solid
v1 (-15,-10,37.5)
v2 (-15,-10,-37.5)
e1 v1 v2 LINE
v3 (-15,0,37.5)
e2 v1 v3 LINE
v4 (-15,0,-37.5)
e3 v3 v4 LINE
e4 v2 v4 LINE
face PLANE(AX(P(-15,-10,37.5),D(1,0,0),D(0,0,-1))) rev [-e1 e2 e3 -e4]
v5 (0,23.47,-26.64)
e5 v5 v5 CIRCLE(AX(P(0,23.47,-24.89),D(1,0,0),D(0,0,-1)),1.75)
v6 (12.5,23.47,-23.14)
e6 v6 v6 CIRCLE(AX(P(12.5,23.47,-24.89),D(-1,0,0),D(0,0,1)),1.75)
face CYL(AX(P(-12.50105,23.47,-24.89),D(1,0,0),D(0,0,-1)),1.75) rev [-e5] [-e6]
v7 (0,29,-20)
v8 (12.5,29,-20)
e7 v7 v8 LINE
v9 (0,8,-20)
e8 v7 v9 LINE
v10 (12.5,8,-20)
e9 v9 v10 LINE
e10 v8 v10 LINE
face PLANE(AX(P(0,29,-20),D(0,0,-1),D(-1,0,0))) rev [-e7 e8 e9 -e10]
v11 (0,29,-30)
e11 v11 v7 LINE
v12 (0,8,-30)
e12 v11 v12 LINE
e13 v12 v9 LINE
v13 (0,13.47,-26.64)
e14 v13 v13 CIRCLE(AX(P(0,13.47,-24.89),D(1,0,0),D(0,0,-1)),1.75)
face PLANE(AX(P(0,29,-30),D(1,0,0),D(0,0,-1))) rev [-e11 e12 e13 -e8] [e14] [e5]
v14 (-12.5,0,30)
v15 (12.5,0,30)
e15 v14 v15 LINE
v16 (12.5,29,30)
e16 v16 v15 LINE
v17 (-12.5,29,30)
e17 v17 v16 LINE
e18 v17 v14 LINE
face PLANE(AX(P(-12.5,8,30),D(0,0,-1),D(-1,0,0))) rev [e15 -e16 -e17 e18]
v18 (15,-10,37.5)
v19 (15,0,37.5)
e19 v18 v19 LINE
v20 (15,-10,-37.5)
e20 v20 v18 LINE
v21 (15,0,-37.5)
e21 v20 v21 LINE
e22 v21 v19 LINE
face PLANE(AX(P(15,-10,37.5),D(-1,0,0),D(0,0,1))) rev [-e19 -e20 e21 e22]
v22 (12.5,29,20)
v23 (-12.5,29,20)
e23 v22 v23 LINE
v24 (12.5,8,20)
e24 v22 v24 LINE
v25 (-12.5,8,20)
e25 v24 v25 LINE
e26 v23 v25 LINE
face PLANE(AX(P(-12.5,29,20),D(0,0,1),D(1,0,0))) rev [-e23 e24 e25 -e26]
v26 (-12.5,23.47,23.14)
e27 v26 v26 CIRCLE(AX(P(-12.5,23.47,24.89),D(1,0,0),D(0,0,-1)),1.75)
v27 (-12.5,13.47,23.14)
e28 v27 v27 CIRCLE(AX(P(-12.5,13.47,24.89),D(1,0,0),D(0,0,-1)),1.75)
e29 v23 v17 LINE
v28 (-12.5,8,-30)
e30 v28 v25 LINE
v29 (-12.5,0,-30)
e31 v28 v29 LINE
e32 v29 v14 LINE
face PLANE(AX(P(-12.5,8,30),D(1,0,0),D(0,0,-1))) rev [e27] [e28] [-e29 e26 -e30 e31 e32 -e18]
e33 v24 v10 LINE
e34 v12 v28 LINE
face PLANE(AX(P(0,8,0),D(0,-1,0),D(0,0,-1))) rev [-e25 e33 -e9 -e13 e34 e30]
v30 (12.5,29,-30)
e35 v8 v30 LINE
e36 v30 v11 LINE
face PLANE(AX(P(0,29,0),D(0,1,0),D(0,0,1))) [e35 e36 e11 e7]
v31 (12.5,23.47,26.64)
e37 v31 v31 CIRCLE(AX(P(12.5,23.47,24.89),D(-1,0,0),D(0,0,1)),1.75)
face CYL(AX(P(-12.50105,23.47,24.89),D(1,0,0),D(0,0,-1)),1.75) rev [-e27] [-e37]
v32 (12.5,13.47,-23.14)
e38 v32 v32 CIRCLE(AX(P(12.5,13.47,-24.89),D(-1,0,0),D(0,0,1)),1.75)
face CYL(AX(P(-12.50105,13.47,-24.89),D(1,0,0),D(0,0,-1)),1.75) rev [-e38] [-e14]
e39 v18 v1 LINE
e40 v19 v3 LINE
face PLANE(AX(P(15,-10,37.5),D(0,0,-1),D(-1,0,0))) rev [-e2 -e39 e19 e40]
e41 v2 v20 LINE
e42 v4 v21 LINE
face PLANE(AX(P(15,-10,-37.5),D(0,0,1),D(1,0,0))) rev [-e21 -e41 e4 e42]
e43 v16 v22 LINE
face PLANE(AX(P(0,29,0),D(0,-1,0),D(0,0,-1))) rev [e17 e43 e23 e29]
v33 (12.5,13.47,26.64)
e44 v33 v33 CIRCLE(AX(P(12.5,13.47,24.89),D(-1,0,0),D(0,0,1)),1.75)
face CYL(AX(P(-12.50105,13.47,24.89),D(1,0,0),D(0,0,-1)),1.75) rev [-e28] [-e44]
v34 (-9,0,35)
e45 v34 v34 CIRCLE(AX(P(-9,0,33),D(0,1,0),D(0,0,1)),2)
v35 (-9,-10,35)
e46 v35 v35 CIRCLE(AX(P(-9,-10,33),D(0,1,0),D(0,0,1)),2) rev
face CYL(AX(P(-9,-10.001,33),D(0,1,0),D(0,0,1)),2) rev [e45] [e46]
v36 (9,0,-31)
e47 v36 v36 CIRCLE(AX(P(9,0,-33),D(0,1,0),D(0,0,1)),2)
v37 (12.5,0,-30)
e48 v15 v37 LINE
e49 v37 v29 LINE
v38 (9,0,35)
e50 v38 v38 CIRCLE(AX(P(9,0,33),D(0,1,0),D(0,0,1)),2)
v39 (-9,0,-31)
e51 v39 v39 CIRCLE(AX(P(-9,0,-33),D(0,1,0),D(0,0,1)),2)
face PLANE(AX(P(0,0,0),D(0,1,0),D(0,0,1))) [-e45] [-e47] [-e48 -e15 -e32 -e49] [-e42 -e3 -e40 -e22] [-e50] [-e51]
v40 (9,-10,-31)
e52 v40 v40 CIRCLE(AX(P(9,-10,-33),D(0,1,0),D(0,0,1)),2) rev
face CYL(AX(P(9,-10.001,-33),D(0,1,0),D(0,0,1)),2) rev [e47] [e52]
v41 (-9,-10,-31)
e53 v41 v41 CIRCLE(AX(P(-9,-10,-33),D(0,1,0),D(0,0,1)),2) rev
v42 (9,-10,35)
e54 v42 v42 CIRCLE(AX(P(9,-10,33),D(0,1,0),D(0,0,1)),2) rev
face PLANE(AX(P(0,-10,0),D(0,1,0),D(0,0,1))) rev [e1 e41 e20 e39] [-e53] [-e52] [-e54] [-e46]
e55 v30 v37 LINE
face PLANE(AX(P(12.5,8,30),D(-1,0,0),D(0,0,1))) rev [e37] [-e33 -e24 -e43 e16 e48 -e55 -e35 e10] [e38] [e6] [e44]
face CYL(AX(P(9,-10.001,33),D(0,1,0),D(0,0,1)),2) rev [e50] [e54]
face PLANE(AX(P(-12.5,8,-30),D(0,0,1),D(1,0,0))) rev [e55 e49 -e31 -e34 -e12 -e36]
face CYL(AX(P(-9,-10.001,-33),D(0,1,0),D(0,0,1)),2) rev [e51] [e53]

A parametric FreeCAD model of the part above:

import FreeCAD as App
import Part
import Sketcher
from FreeCAD import Vector
Q = App.Units.Quantity

doc = App.newDocument("Part")
params = doc.addObject("Spreadsheet::Sheet", "Params")
for row, (alias, value) in enumerate([
    ("sketch1_width", "25 mm"),
    ("sketch1_height", "60 mm"),
    ("pad1_length", "8 mm"),
    ("sketch2_width", "25 mm"),
    ("sketch2_height", "10 mm"),
    ("pad2_length", "21 mm"),
    ("sketch3_diameter", "3.5 mm"),
    ("sketch4_diameter", "3.5 mm"),
    ("sketch5_diameter", "3.5 mm"),
    ("sketch6_diameter", "3.5 mm"),
    ("sketch7_width", "30 mm"),
    ("sketch7_height", "75 mm"),
    ("pad3_length", "10 mm"),
    ("sketch8_diameter", "4 mm"),
    ("sketch9_diameter", "4 mm"),
    ("sketch10_diameter", "4 mm"),
    ("sketch11_diameter", "4 mm"),
], start=1):
    params.set(f"A{row}", alias)
    params.set(f"B{row}", "=" + value)
    params.setAlias(f"B{row}", alias)

body = doc.addObject("PartDesign::Body", "Body")

sketch1 = body.newObject("Sketcher::SketchObject", "Sketch")
sketch1.AttachmentSupport = (doc.getObject("XZ_Plane"), [""])
sketch1.MapMode = "FlatFace"
sketch1.addGeometry(Part.LineSegment(Vector(-12, -30, 0), Vector(-12, 30, 0)), False)
sketch1.addGeometry(Part.LineSegment(Vector(-12, 30, 0), Vector(12, 30, 0)), False)
sketch1.addGeometry(Part.LineSegment(Vector(12, 30, 0), Vector(12, -30, 0)), False)
sketch1.addGeometry(Part.LineSegment(Vector(12, -30, 0), Vector(-12, -30, 0)), False)
sketch1.addConstraint(Sketcher.Constraint("Coincident", 0, 2, 1, 1))
sketch1.addConstraint(Sketcher.Constraint("Coincident", 1, 2, 2, 1))
sketch1.addConstraint(Sketcher.Constraint("Coincident", 2, 2, 3, 1))
sketch1.addConstraint(Sketcher.Constraint("Coincident", 3, 2, 0, 1))
sketch1.addConstraint(Sketcher.Constraint("Vertical", 0))
sketch1.addConstraint(Sketcher.Constraint("Horizontal", 1))
sketch1.addConstraint(Sketcher.Constraint("Vertical", 2))
sketch1.addConstraint(Sketcher.Constraint("Horizontal", 3))
sketch1.addConstraint(Sketcher.Constraint("Symmetric", 0, 2, 2, 2, -1, 1))
sketch1.addConstraint(Sketcher.Constraint("DistanceX", 1, 1, 1, 2, Q("25 mm")))
sketch1.addConstraint(Sketcher.Constraint("DistanceY", 0, 1, 0, 2, Q("60 mm")))
sketch1.setExpression("Constraints[9]", "Params.sketch1_width")
sketch1.setExpression("Constraints[10]", "Params.sketch1_height")
pad1 = body.newObject("PartDesign::Pad", "Pad")
pad1.Profile = sketch1
pad1.setExpression("Length", "Params.pad1_length")
pad1.Reversed = True

sketch2 = body.newObject("Sketcher::SketchObject", "Sketch001")
sketch2.AttachmentSupport = (doc.getObject("XZ_Plane"), [""])
sketch2.MapMode = "FlatFace"
sketch2.AttachmentOffset = App.Placement(Vector(0, 0, -8), App.Rotation())
sketch2.addGeometry(Part.LineSegment(Vector(-12, 20, 0), Vector(-12, 30, 0)), False)
sketch2.addGeometry(Part.LineSegment(Vector(-12, 30, 0), Vector(12, 30, 0)), False)
sketch2.addGeometry(Part.LineSegment(Vector(12, 30, 0), Vector(12, 20, 0)), False)
sketch2.addGeometry(Part.LineSegment(Vector(12, 20, 0), Vector(-12, 20, 0)), False)
sketch2.addGeometry(Part.LineSegment(Vector(0, -30, 0), Vector(0, -20, 0)), False)
sketch2.addGeometry(Part.LineSegment(Vector(0, -20, 0), Vector(12, -20, 0)), False)
sketch2.addGeometry(Part.LineSegment(Vector(12, -20, 0), Vector(12, -30, 0)), False)
sketch2.addGeometry(Part.LineSegment(Vector(12, -30, 0), Vector(0, -30, 0)), False)
sketch2.addConstraint(Sketcher.Constraint("Coincident", 0, 2, 1, 1))
sketch2.addConstraint(Sketcher.Constraint("Coincident", 1, 2, 2, 1))
sketch2.addConstraint(Sketcher.Constraint("Coincident", 2, 2, 3, 1))
sketch2.addConstraint(Sketcher.Constraint("Coincident", 3, 2, 0, 1))
sketch2.addConstraint(Sketcher.Constraint("Coincident", 4, 2, 5, 1))
sketch2.addConstraint(Sketcher.Constraint("Coincident", 5, 2, 6, 1))
sketch2.addConstraint(Sketcher.Constraint("Coincident", 6, 2, 7, 1))
sketch2.addConstraint(Sketcher.Constraint("Coincident", 7, 2, 4, 1))
sketch2.addConstraint(Sketcher.Constraint("Vertical", 0))
sketch2.addConstraint(Sketcher.Constraint("Horizontal", 1))
sketch2.addConstraint(Sketcher.Constraint("Vertical", 2))
sketch2.addConstraint(Sketcher.Constraint("Horizontal", 3))
sketch2.addConstraint(Sketcher.Constraint("Vertical", 4))
sketch2.addConstraint(Sketcher.Constraint("Horizontal", 5))
sketch2.addConstraint(Sketcher.Constraint("Vertical", 6))
sketch2.addConstraint(Sketcher.Constraint("Horizontal", 7))
sketch2.addConstraint(Sketcher.Constraint("Symmetric", 3, 2, 5, 2, -1, 1))
sketch2.addConstraint(Sketcher.Constraint("Symmetric", 1, 2, 6, 2, -1))
sketch2.addConstraint(Sketcher.Constraint("PointOnObject", 4, 2, -2))
sketch2.addConstraint(Sketcher.Constraint("DistanceX", 1, 1, 1, 2, Q("25 mm")))
sketch2.addConstraint(Sketcher.Constraint("DistanceY", 0, 1, 0, 2, Q("10 mm")))
sketch2.addConstraint(Sketcher.Constraint("DistanceY", -1, 1, 0, 2, Q("30 mm")))
sketch2.setExpression("Constraints[19]", "Params.sketch2_width")
sketch2.setExpression("Constraints[20]", "Params.sketch2_height")
pad2 = body.newObject("PartDesign::Pad", "Pad001")
pad2.Profile = sketch2
pad2.setExpression("Length", "Params.pad2_length")
pad2.Reversed = True

sketch3 = body.newObject("Sketcher::SketchObject", "Sketch002")
sketch3.AttachmentSupport = (doc.getObject("YZ_Plane"), [""])
sketch3.MapMode = "FlatFace"
sketch3.AttachmentOffset = App.Placement(Vector(0, 0, 12.5), App.Rotation())
sketch3.addGeometry(Part.Circle(Vector(23.5, -24.9, 0), Vector(0, 0, 1), 1.8), False)
sketch3.addConstraint(Sketcher.Constraint("Diameter", 0, Q("3.5 mm")))
sketch3.addConstraint(Sketcher.Constraint("DistanceX", -1, 1, 0, 3, Q("23.47 mm")))
sketch3.addConstraint(Sketcher.Constraint("DistanceY", 0, 3, -1, 1, Q("24.89 mm")))
sketch3.setExpression("Constraints[0]", "Params.sketch3_diameter")
pocket1 = body.newObject("PartDesign::Pocket", "Pocket")
pocket1.Profile = sketch3
pocket1.Type = "UpToFirst"

sketch4 = body.newObject("Sketcher::SketchObject", "Sketch003")
sketch4.AttachmentSupport = (doc.getObject("YZ_Plane"), [""])
sketch4.MapMode = "FlatFace"
sketch4.AttachmentOffset = App.Placement(Vector(0, 0, 12.5), App.Rotation())
sketch4.addGeometry(Part.Circle(Vector(13.5, -24.9, 0), Vector(0, 0, 1), 1.8), False)
sketch4.addConstraint(Sketcher.Constraint("Diameter", 0, Q("3.5 mm")))
sketch4.addConstraint(Sketcher.Constraint("DistanceX", -1, 1, 0, 3, Q("13.47 mm")))
sketch4.addConstraint(Sketcher.Constraint("DistanceY", 0, 3, -1, 1, Q("24.89 mm")))
sketch4.setExpression("Constraints[0]", "Params.sketch4_diameter")
pocket2 = body.newObject("PartDesign::Pocket", "Pocket001")
pocket2.Profile = sketch4
pocket2.Type = "UpToFirst"

sketch5 = body.newObject("Sketcher::SketchObject", "Sketch004")
sketch5.AttachmentSupport = (doc.getObject("YZ_Plane"), [""])
sketch5.MapMode = "FlatFace"
sketch5.AttachmentOffset = App.Placement(Vector(0, 0, 12.5), App.Rotation())
sketch5.addGeometry(Part.Circle(Vector(23.5, 24.9, 0), Vector(0, 0, 1), 1.8), False)
sketch5.addConstraint(Sketcher.Constraint("Diameter", 0, Q("3.5 mm")))
sketch5.addConstraint(Sketcher.Constraint("DistanceX", -1, 1, 0, 3, Q("23.47 mm")))
sketch5.addConstraint(Sketcher.Constraint("DistanceY", -1, 1, 0, 3, Q("24.89 mm")))
sketch5.setExpression("Constraints[0]", "Params.sketch5_diameter")
pocket3 = body.newObject("PartDesign::Pocket", "Pocket002")
pocket3.Profile = sketch5
pocket3.Type = "UpToFirst"

sketch6 = body.newObject("Sketcher::SketchObject", "Sketch005")
sketch6.AttachmentSupport = (doc.getObject("YZ_Plane"), [""])
sketch6.MapMode = "FlatFace"
sketch6.AttachmentOffset = App.Placement(Vector(0, 0, 12.5), App.Rotation())
sketch6.addGeometry(Part.Circle(Vector(13.5, 24.9, 0), Vector(0, 0, 1), 1.8), False)
sketch6.addConstraint(Sketcher.Constraint("Diameter", 0, Q("3.5 mm")))
sketch6.addConstraint(Sketcher.Constraint("DistanceX", -1, 1, 0, 3, Q("13.47 mm")))
sketch6.addConstraint(Sketcher.Constraint("DistanceY", -1, 1, 0, 3, Q("24.89 mm")))
sketch6.setExpression("Constraints[0]", "Params.sketch6_diameter")
pocket4 = body.newObject("PartDesign::Pocket", "Pocket003")
pocket4.Profile = sketch6
pocket4.Type = "UpToFirst"

sketch7 = body.newObject("Sketcher::SketchObject", "Sketch006")
sketch7.AttachmentSupport = (doc.getObject("XZ_Plane"), [""])
sketch7.MapMode = "FlatFace"
sketch7.addGeometry(Part.LineSegment(Vector(-15, 38, 0), Vector(-15, -38, 0)), False)
sketch7.addGeometry(Part.LineSegment(Vector(-15, -38, 0), Vector(15, -38, 0)), False)
sketch7.addGeometry(Part.LineSegment(Vector(15, -38, 0), Vector(15, 38, 0)), False)
sketch7.addGeometry(Part.LineSegment(Vector(15, 38, 0), Vector(-15, 38, 0)), False)
sketch7.addConstraint(Sketcher.Constraint("Coincident", 0, 2, 1, 1))
sketch7.addConstraint(Sketcher.Constraint("Coincident", 1, 2, 2, 1))
sketch7.addConstraint(Sketcher.Constraint("Coincident", 2, 2, 3, 1))
sketch7.addConstraint(Sketcher.Constraint("Coincident", 3, 2, 0, 1))
sketch7.addConstraint(Sketcher.Constraint("Vertical", 0))
sketch7.addConstraint(Sketcher.Constraint("Horizontal", 1))
sketch7.addConstraint(Sketcher.Constraint("Vertical", 2))
sketch7.addConstraint(Sketcher.Constraint("Horizontal", 3))
sketch7.addConstraint(Sketcher.Constraint("Symmetric", 0, 2, 2, 2, -1, 1))
sketch7.addConstraint(Sketcher.Constraint("DistanceX", 1, 1, 1, 2, Q("30 mm")))
sketch7.addConstraint(Sketcher.Constraint("DistanceY", 0, 2, 0, 1, Q("75 mm")))
sketch7.setExpression("Constraints[9]", "Params.sketch7_width")
sketch7.setExpression("Constraints[10]", "Params.sketch7_height")
pad3 = body.newObject("PartDesign::Pad", "Pad002")
pad3.Profile = sketch7
pad3.setExpression("Length", "Params.pad3_length")

sketch8 = body.newObject("Sketcher::SketchObject", "Sketch007")
sketch8.AttachmentSupport = (doc.getObject("XZ_Plane"), [""])
sketch8.MapMode = "FlatFace"
sketch8.addGeometry(Part.Circle(Vector(9, -33, 0), Vector(0, 0, 1), 2), False)
sketch8.addConstraint(Sketcher.Constraint("Diameter", 0, Q("4 mm")))
sketch8.addConstraint(Sketcher.Constraint("DistanceX", -1, 1, 0, 3, Q("9 mm")))
sketch8.addConstraint(Sketcher.Constraint("DistanceY", 0, 3, -1, 1, Q("33 mm")))
sketch8.setExpression("Constraints[0]", "Params.sketch8_diameter")
pocket5 = body.newObject("PartDesign::Pocket", "Pocket004")
pocket5.Profile = sketch8
pocket5.Type = "UpToFirst"
pocket5.Reversed = True

sketch9 = body.newObject("Sketcher::SketchObject", "Sketch008")
sketch9.AttachmentSupport = (doc.getObject("XZ_Plane"), [""])
sketch9.MapMode = "FlatFace"
sketch9.addGeometry(Part.Circle(Vector(-9, -33, 0), Vector(0, 0, 1), 2), False)
sketch9.addConstraint(Sketcher.Constraint("Diameter", 0, Q("4 mm")))
sketch9.addConstraint(Sketcher.Constraint("DistanceX", 0, 3, -1, 1, Q("9 mm")))
sketch9.addConstraint(Sketcher.Constraint("DistanceY", 0, 3, -1, 1, Q("33 mm")))
sketch9.setExpression("Constraints[0]", "Params.sketch9_diameter")
pocket6 = body.newObject("PartDesign::Pocket", "Pocket005")
pocket6.Profile = sketch9
pocket6.Type = "UpToFirst"
pocket6.Reversed = True

sketch10 = body.newObject("Sketcher::SketchObject", "Sketch009")
sketch10.AttachmentSupport = (doc.getObject("XZ_Plane"), [""])
sketch10.MapMode = "FlatFace"
sketch10.addGeometry(Part.Circle(Vector(-9, 33, 0), Vector(0, 0, 1), 2), False)
sketch10.addConstraint(Sketcher.Constraint("Diameter", 0, Q("4 mm")))
sketch10.addConstraint(Sketcher.Constraint("DistanceX", 0, 3, -1, 1, Q("9 mm")))
sketch10.addConstraint(Sketcher.Constraint("DistanceY", -1, 1, 0, 3, Q("33 mm")))
sketch10.setExpression("Constraints[0]", "Params.sketch10_diameter")
pocket7 = body.newObject("PartDesign::Pocket", "Pocket006")
pocket7.Profile = sketch10
pocket7.Type = "UpToFirst"
pocket7.Reversed = True

sketch11 = body.newObject("Sketcher::SketchObject", "Sketch010")
sketch11.AttachmentSupport = (doc.getObject("XZ_Plane"), [""])
sketch11.MapMode = "FlatFace"
sketch11.addGeometry(Part.Circle(Vector(9, 33, 0), Vector(0, 0, 1), 2), False)
sketch11.addConstraint(Sketcher.Constraint("Diameter", 0, Q("4 mm")))
sketch11.addConstraint(Sketcher.Constraint("DistanceX", -1, 1, 0, 3, Q("9 mm")))
sketch11.addConstraint(Sketcher.Constraint("DistanceY", -1, 1, 0, 3, Q("33 mm")))
sketch11.setExpression("Constraints[0]", "Params.sketch11_diameter")
pocket8 = body.newObject("PartDesign::Pocket", "Pocket007")
pocket8.Profile = sketch11
pocket8.Type = "UpToFirst"
pocket8.Reversed = True

doc.recompute()
